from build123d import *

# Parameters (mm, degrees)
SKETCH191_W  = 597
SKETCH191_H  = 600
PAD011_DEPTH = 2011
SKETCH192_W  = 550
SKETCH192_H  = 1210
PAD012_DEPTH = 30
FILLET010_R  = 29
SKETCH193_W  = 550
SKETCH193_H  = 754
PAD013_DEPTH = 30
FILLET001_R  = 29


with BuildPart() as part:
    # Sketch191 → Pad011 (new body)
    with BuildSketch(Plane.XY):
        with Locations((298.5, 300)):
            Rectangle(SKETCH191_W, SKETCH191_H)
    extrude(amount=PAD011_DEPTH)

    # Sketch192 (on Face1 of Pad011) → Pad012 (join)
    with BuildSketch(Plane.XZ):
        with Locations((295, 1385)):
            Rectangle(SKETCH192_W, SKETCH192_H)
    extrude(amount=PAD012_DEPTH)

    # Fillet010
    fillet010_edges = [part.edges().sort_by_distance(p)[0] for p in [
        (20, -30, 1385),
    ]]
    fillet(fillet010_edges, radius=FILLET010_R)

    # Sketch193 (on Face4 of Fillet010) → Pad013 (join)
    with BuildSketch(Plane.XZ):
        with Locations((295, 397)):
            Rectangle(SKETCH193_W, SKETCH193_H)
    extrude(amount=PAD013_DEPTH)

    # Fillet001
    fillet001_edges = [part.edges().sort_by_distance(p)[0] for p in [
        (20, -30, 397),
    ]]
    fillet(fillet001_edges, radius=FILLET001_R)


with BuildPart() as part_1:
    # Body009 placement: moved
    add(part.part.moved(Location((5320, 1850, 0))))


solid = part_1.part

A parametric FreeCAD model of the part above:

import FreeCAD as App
import Part
import Sketcher


def edges_at(feature, points):
    """Names of the edges that pass closest to the given points."""
    edges = feature.Shape.Edges
    near = lambda p: min(range(len(edges)), key=lambda i: edges[i].distToShape(Part.Vertex(*p))[0])
    return sorted({f"Edge{near(p) + 1}" for p in points})


def add_polygon(sketch, points):
    """Adds a closed chain of lines whose ends are joined by coincident constraints."""
    first, n = sketch.GeometryCount, len(points)
    for a, b in zip(points, points[1:] + points[:1]):
        sketch.addGeometry(Part.LineSegment(App.Vector(*a, 0), App.Vector(*b, 0)), False)
    for i in range(n):
        sketch.addConstraint(Sketcher.Constraint("Coincident", first + i, 2, first + (i + 1) % n, 1))

doc = App.newDocument("Part")
body = doc.addObject("PartDesign::Body", "Body")

sketch1 = body.newObject("Sketcher::SketchObject", "Sketch")
sketch1.AttachmentSupport = (doc.getObject("XY_Plane"), [""])
sketch1.MapMode = "FlatFace"
add_polygon(sketch1, [(0, 600), (0, 0), (597, 0), (597, 600)])
sketch1.addConstraint([
    Sketcher.Constraint("Vertical", 0),
    Sketcher.Constraint("Horizontal", 1),
    Sketcher.Constraint("Vertical", 2),
    Sketcher.Constraint("Horizontal", 3),
    Sketcher.Constraint("Coincident", 0, 2, -1, 1),
    Sketcher.Constraint("DistanceX", 1, 1, 1, 2, 597.0),
    Sketcher.Constraint("DistanceY", 0, 2, 0, 1, 600.0),
])
pad1 = body.newObject("PartDesign::Pad", "Pad")
pad1.Profile = sketch1
pad1.Length = 2011

sketch2 = body.newObject("Sketcher::SketchObject", "Sketch001")
sketch2.AttachmentSupport = (doc.getObject("XZ_Plane"), [""])
sketch2.MapMode = "FlatFace"
add_polygon(sketch2, [(20, 1990), (20, 780), (570, 780), (570, 1990)])
sketch2.addConstraint([
    Sketcher.Constraint("Vertical", 0),
    Sketcher.Constraint("Horizontal", 1),
    Sketcher.Constraint("Vertical", 2),
    Sketcher.Constraint("Horizontal", 3),
    Sketcher.Constraint("DistanceX", 1, 1, 1, 2, 550.0),
    Sketcher.Constraint("DistanceY", 0, 2, 0, 1, 1210.0),
    Sketcher.Constraint("DistanceX", -1, 1, 0, 2, 20.0),
    Sketcher.Constraint("DistanceY", -1, 1, 0, 2, 780.0),
])
pad2 = body.newObject("PartDesign::Pad", "Pad001")
pad2.Profile = sketch2
pad2.Length = 30
doc.recompute()

fillet = body.newObject("PartDesign::Fillet", "Fillet")
fillet.Base = (pad2, edges_at(pad2, [(20, -30, 1385)]))
fillet.Radius = 29

sketch3 = body.newObject("Sketcher::SketchObject", "Sketch002")
sketch3.AttachmentSupport = (doc.getObject("XZ_Plane"), [""])
sketch3.MapMode = "FlatFace"
add_polygon(sketch3, [(20, 774), (20, 20), (570, 20), (570, 774)])
sketch3.addConstraint([
    Sketcher.Constraint("Vertical", 0),
    Sketcher.Constraint("Horizontal", 1),
    Sketcher.Constraint("Vertical", 2),
    Sketcher.Constraint("Horizontal", 3),
    Sketcher.Constraint("DistanceX", 1, 1, 1, 2, 550.0),
    Sketcher.Constraint("DistanceY", 0, 2, 0, 1, 754.0),
    Sketcher.Constraint("DistanceX", -1, 1, 0, 2, 20.0),
    Sketcher.Constraint("DistanceY", -1, 1, 0, 2, 20.0),
])
pad3 = body.newObject("PartDesign::Pad", "Pad002")
pad3.Profile = sketch3
pad3.Length = 30
doc.recompute()

fillet2 = body.newObject("PartDesign::Fillet", "Fillet001")
fillet2.Base = (pad3, edges_at(pad3, [(20, -30, 397)]))
fillet2.Radius = 29
body2 = doc.addObject("PartDesign::Body", "Body001")
doc.recompute()

body.Placement = App.Placement(App.Vector(5320, 1850, 0), App.Rotation(App.Vector(0, 0, 1), 0))
boolean = body2.newObject("PartDesign::Boolean", "Boolean")
boolean.Type = "Fuse"
boolean.addObjects([body])

doc.recompute()
